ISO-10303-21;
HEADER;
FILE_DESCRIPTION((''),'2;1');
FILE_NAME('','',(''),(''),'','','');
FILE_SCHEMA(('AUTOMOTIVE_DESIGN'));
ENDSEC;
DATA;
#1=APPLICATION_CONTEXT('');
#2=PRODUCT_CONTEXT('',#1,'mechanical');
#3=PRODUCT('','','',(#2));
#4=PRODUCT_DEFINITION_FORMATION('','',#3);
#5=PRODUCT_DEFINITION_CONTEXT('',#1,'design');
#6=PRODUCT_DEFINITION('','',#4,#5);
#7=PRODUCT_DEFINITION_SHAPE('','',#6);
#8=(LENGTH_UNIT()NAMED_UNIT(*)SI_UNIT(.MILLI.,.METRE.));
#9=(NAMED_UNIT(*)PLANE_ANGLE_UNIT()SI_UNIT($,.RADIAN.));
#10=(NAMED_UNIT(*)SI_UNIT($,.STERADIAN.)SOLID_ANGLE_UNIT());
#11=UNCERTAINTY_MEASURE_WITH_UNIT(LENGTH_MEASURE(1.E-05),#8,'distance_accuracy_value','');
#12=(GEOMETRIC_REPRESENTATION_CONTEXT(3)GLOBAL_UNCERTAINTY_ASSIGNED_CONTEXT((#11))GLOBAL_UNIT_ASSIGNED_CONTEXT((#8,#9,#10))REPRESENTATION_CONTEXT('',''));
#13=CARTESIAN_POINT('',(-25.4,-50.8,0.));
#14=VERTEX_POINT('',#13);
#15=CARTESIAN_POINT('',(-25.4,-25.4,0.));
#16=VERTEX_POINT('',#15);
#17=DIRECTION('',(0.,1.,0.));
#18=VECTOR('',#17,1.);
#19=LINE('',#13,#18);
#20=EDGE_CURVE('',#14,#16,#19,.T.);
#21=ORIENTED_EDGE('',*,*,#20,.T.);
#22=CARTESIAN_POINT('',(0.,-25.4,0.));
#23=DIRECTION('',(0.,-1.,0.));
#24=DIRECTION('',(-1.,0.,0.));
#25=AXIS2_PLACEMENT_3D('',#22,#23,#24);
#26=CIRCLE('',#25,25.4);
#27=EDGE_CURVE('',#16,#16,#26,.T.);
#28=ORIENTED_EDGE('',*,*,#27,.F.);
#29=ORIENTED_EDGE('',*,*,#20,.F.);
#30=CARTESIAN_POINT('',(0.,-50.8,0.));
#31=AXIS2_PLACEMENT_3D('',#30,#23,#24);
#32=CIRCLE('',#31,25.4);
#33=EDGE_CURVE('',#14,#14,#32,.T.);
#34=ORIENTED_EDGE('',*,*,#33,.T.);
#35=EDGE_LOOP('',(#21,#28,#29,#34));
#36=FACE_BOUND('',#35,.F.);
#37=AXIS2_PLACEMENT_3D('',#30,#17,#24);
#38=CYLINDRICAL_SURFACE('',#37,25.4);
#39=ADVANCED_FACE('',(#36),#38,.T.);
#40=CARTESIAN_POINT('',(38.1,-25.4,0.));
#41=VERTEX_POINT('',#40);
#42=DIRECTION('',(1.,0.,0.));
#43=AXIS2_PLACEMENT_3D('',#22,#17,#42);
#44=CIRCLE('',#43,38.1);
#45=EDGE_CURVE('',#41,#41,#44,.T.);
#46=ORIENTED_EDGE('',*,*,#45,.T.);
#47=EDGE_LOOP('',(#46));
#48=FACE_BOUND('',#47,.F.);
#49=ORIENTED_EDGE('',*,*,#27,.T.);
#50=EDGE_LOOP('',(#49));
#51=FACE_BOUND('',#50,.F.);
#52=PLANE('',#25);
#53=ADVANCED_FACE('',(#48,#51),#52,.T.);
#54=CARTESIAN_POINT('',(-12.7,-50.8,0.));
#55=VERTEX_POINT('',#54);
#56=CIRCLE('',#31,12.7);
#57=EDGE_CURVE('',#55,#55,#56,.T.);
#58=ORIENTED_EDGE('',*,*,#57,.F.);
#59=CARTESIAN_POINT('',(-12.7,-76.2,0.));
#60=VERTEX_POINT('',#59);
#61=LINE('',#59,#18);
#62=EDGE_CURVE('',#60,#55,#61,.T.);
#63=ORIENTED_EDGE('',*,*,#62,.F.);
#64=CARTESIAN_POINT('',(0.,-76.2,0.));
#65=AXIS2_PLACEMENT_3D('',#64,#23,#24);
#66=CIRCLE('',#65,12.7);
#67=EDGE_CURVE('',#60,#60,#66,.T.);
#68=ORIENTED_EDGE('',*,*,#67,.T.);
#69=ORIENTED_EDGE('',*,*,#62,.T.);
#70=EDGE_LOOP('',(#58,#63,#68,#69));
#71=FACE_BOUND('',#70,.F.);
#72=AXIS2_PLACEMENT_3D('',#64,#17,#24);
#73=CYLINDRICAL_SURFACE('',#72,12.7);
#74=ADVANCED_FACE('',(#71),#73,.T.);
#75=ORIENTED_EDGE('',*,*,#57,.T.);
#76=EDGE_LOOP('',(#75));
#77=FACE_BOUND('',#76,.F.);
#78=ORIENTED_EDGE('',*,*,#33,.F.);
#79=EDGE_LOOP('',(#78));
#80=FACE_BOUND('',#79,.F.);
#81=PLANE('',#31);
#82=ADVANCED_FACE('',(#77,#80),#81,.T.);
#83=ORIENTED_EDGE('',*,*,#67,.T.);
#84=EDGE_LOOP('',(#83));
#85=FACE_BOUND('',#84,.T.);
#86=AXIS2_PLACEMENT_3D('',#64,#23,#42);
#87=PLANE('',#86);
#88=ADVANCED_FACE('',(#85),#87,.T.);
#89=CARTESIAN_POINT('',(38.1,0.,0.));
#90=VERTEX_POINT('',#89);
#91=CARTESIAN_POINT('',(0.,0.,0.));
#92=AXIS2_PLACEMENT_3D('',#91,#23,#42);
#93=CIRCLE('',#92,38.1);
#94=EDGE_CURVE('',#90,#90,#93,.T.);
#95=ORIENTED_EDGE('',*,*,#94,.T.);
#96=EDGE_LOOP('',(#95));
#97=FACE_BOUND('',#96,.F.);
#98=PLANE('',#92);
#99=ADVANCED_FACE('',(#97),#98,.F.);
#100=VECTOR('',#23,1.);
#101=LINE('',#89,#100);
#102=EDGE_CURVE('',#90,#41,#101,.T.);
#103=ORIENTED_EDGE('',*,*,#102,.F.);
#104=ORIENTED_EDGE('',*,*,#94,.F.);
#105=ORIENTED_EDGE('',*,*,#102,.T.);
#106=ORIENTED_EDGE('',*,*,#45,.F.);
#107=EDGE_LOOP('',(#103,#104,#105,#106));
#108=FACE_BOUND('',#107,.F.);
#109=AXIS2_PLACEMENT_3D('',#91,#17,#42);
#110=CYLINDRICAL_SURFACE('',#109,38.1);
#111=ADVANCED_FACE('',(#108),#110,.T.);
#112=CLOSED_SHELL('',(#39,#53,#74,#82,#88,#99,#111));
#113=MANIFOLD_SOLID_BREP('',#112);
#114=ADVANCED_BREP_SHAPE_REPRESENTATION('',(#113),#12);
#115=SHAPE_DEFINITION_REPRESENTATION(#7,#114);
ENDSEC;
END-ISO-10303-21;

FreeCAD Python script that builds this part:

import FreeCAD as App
import Part
import Sketcher
from FreeCAD import Vector
Q = App.Units.Quantity


def add_polygon(sketch, points):
    """Adds a closed chain of lines whose ends are joined by coincident constraints."""
    first, n = sketch.GeometryCount, len(points)
    for a, b in zip(points, points[1:] + points[:1]):
        sketch.addGeometry(Part.LineSegment(App.Vector(*a, 0), App.Vector(*b, 0)), False)
    for i in range(n):
        sketch.addConstraint(Sketcher.Constraint("Coincident", first + i, 2, first + (i + 1) % n, 1))

doc = App.newDocument("Part")
params = doc.addObject("Spreadsheet::Sheet", "Params")
for row, (alias, value) in enumerate([
    ("sketch1_diameter", "3 in"),
    ("pad1_length", "3 in"),
    ("sketch2_width", "1 in"),
    ("sketch2_width2", "1.5 in"),
    ("groove_angle", "360 deg"),
], start=1):
    params.set(f"A{row}", alias)
    params.set(f"B{row}", "=" + value)
    params.setAlias(f"B{row}", alias)

body = doc.addObject("PartDesign::Body", "Body")

sketch1 = body.newObject("Sketcher::SketchObject", "Sketch")
sketch1.AttachmentSupport = (doc.getObject("XZ_Plane"), [""])
sketch1.MapMode = "FlatFace"
sketch1.addGeometry(Part.Circle(Vector(0, 0, 0), Vector(0, 0, 1), 38), False)
sketch1.addConstraint(Sketcher.Constraint("Coincident", 0, 3, -1, 1))
sketch1.addConstraint(Sketcher.Constraint("Diameter", 0, Q("3 in")))
sketch1.setExpression("Constraints[1]", "Params.sketch1_diameter")
pad1 = body.newObject("PartDesign::Pad", "Pad")
pad1.Profile = sketch1
pad1.setExpression("Length", "Params.pad1_length")

sketch2 = body.newObject("Sketcher::SketchObject", "Sketch001")
sketch2.AttachmentSupport = (doc.getObject("XY_Plane"), [""])
sketch2.MapMode = "FlatFace"
add_polygon(sketch2, [(-51, -76), (-13, -76), (-13, -51), (-25, -51), (-25, -25), (-51, -25)])
sketch2.addConstraint(Sketcher.Constraint("Horizontal", 0))
sketch2.addConstraint(Sketcher.Constraint("Vertical", 1))
sketch2.addConstraint(Sketcher.Constraint("Horizontal", 2))
sketch2.addConstraint(Sketcher.Constraint("Vertical", 3))
sketch2.addConstraint(Sketcher.Constraint("Horizontal", 4))
sketch2.addConstraint(Sketcher.Constraint("Vertical", 5))
sketch2.addConstraint(Sketcher.Constraint("Equal", 4, 1))
sketch2.addConstraint(Sketcher.Constraint("Equal", 1, 3))
sketch2.addConstraint(Sketcher.Constraint("DistanceX", 4, 2, 4, 1, Q("1 in")))
sketch2.addConstraint(Sketcher.Constraint("DistanceX", 0, 1, 0, 2, Q("1.5 in")))
sketch2.addConstraint(Sketcher.Constraint("DistanceY", 0, 2, -1, 1, Q("3 in")))
sketch2.addConstraint(Sketcher.Constraint("DistanceX", 2, 2, -1, 1, Q("1 in")))
sketch2.setExpression("Constraints[14]", "Params.sketch2_width")
sketch2.setExpression("Constraints[15]", "Params.sketch2_width2")
groove = body.newObject("PartDesign::Groove", "Groove")
groove.Profile = sketch2
groove.ReferenceAxis = (sketch2, ["V_Axis"])
groove.setExpression("Angle", "Params.groove_angle")

doc.recompute()
